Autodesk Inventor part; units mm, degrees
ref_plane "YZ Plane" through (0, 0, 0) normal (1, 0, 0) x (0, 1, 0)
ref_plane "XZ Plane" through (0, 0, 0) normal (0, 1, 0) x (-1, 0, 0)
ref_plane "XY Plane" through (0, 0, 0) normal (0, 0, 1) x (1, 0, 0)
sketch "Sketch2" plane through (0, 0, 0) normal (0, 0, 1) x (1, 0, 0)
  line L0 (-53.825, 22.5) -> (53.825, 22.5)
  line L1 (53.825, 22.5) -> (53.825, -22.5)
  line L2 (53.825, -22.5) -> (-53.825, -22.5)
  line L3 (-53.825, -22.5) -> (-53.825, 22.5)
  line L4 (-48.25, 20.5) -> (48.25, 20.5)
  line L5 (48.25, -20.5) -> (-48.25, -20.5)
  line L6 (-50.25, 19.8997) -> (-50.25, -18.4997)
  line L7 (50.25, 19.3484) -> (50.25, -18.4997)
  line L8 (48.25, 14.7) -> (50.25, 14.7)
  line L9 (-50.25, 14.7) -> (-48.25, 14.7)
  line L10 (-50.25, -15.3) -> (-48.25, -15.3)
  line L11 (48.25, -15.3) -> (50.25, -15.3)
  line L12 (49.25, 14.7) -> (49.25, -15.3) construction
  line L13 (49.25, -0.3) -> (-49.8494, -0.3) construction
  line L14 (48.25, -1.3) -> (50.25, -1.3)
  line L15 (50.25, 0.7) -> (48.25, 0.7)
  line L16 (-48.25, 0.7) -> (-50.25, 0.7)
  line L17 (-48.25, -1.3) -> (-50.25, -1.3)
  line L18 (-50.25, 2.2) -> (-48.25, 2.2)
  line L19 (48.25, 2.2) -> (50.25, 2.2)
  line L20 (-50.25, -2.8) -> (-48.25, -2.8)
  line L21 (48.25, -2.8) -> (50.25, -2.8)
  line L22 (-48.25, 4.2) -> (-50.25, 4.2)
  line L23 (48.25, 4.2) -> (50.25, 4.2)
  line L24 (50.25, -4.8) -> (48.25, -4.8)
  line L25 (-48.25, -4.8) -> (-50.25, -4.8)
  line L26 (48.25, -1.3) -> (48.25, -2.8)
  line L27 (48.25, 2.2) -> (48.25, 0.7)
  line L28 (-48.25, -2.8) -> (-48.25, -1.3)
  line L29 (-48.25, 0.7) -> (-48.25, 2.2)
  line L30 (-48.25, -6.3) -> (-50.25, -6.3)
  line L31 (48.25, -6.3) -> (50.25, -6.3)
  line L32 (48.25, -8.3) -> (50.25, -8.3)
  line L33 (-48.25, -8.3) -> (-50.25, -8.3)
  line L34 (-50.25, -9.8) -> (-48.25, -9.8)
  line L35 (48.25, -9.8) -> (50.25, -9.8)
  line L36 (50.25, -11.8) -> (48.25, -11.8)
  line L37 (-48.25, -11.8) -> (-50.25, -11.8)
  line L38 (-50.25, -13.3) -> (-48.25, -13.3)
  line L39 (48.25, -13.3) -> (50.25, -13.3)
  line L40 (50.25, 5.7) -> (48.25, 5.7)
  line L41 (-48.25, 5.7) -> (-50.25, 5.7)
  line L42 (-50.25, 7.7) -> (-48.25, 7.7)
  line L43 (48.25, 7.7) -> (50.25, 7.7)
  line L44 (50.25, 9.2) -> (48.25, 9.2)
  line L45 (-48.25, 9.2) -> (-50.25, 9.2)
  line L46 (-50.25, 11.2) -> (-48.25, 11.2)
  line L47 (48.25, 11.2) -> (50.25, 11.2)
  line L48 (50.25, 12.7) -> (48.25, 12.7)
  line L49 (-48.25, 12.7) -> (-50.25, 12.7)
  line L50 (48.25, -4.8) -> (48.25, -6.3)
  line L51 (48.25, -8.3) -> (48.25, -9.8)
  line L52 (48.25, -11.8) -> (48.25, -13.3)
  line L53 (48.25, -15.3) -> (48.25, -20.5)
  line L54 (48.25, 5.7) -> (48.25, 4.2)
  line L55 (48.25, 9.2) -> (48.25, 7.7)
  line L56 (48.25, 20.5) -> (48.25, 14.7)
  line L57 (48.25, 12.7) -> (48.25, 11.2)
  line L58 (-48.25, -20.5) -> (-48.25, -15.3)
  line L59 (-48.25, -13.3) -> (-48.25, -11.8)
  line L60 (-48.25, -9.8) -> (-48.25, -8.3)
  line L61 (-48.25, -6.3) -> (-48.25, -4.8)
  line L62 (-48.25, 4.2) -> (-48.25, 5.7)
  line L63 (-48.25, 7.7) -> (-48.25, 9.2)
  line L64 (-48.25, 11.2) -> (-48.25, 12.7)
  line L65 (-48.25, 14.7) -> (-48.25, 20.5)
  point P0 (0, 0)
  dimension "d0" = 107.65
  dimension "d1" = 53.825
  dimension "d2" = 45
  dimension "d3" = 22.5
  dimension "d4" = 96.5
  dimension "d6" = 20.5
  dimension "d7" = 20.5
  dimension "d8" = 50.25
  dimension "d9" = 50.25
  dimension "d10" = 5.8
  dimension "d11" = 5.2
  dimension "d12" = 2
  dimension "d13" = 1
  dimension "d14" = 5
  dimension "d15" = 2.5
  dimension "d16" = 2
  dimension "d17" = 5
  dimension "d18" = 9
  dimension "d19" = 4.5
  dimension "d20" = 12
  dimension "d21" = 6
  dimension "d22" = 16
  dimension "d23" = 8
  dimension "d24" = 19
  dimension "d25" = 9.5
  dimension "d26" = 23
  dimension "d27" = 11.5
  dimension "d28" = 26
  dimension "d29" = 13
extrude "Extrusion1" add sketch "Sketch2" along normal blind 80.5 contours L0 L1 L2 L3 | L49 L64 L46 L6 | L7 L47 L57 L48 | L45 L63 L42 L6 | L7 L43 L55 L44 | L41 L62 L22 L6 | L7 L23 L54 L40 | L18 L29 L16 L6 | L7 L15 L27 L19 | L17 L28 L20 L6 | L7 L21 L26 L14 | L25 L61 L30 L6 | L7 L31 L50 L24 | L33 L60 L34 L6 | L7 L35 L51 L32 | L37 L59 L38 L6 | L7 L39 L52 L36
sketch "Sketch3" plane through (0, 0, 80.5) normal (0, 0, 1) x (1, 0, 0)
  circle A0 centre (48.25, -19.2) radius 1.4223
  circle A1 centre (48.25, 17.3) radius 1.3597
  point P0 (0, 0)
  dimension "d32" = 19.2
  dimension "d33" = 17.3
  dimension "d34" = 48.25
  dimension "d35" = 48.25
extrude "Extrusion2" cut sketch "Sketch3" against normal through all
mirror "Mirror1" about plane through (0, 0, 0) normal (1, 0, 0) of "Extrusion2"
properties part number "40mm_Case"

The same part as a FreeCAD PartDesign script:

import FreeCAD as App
import Part
import Sketcher
from FreeCAD import Vector
Q = App.Units.Quantity

doc = App.newDocument("Part")
body = doc.addObject("PartDesign::Body", "Body")

# Sketch on XY plane
sketch1 = body.newObject("Sketcher::SketchObject", "Sketch")
sketch1.AttachmentSupport = (doc.getObject("XY_Plane"), [""])
sketch1.MapMode = "FlatFace"
sketch1.addGeometry([
    Part.LineSegment(Vector(53.8, 22.5, 0), Vector(-53.8, 22.5, 0)),  # 0
    Part.LineSegment(Vector(-53.8, 22.5, 0), Vector(-53.8, -22.5, 0)),  # 1
    Part.LineSegment(Vector(-53.8, -22.5, 0), Vector(53.8, -22.5, 0)),  # 2
    Part.LineSegment(Vector(53.8, -22.5, 0), Vector(53.8, 22.5, 0)),  # 3
    Part.LineSegment(Vector(-48.2, 14.7, 0), Vector(-48.2, 20.5, 0)),  # 4
    Part.LineSegment(Vector(-48.2, 20.5, 0), Vector(48.2, 20.5, 0)),  # 5
    Part.LineSegment(Vector(48.2, 20.5, 0), Vector(48.2, 14.7, 0)),  # 6
    Part.LineSegment(Vector(48.2, 14.7, 0), Vector(50.2, 14.7, 0)),  # 7
    Part.LineSegment(Vector(50.2, 14.7, 0), Vector(50.2, 12.7, 0)),  # 8
    Part.LineSegment(Vector(50.2, 12.7, 0), Vector(48.2, 12.7, 0)),  # 9
    Part.LineSegment(Vector(48.2, 12.7, 0), Vector(48.2, 11.2, 0)),  # 10
    Part.LineSegment(Vector(48.2, 11.2, 0), Vector(50.2, 11.2, 0)),  # 11
    Part.LineSegment(Vector(50.2, 11.2, 0), Vector(50.2, 9.2, 0)),  # 12
    Part.LineSegment(Vector(50.2, 9.2, 0), Vector(48.2, 9.2, 0)),  # 13
    Part.LineSegment(Vector(48.2, 9.2, 0), Vector(48.2, 7.7, 0)),  # 14
    Part.LineSegment(Vector(48.2, 7.7, 0), Vector(50.2, 7.7, 0)),  # 15
    Part.LineSegment(Vector(50.2, 7.7, 0), Vector(50.2, 5.7, 0)),  # 16
    Part.LineSegment(Vector(50.2, 5.7, 0), Vector(48.2, 5.7, 0)),  # 17
    Part.LineSegment(Vector(48.2, 5.7, 0), Vector(48.2, 4.2, 0)),  # 18
    Part.LineSegment(Vector(48.2, 4.2, 0), Vector(50.2, 4.2, 0)),  # 19
    Part.LineSegment(Vector(50.2, 4.2, 0), Vector(50.2, 2.2, 0)),  # 20
    Part.LineSegment(Vector(50.2, 2.2, 0), Vector(48.2, 2.2, 0)),  # 21
    Part.LineSegment(Vector(48.2, 2.2, 0), Vector(48.2, 0.7, 0)),  # 22
    Part.LineSegment(Vector(48.2, 0.7, 0), Vector(50.2, 0.7, 0)),  # 23
    Part.LineSegment(Vector(50.2, 0.7, 0), Vector(50.2, -1.3, 0)),  # 24
    Part.LineSegment(Vector(50.2, -1.3, 0), Vector(48.2, -1.3, 0)),  # 25
    Part.LineSegment(Vector(48.2, -1.3, 0), Vector(48.2, -2.8, 0)),  # 26
    Part.LineSegment(Vector(48.2, -2.8, 0), Vector(50.2, -2.8, 0)),  # 27
    Part.LineSegment(Vector(50.2, -2.8, 0), Vector(50.2, -4.8, 0)),  # 28
    Part.LineSegment(Vector(50.2, -4.8, 0), Vector(48.2, -4.8, 0)),  # 29
    Part.LineSegment(Vector(48.2, -4.8, 0), Vector(48.2, -6.3, 0)),  # 30
    Part.LineSegment(Vector(48.2, -6.3, 0), Vector(50.2, -6.3, 0)),  # 31
    Part.LineSegment(Vector(50.2, -6.3, 0), Vector(50.2, -8.3, 0)),  # 32
    Part.LineSegment(Vector(50.2, -8.3, 0), Vector(48.2, -8.3, 0)),  # 33
    Part.LineSegment(Vector(48.2, -8.3, 0), Vector(48.2, -9.8, 0)),  # 34
    Part.LineSegment(Vector(48.2, -9.8, 0), Vector(50.2, -9.8, 0)),  # 35
    Part.LineSegment(Vector(50.2, -9.8, 0), Vector(50.2, -11.8, 0)),  # 36
    Part.LineSegment(Vector(50.2, -11.8, 0), Vector(48.2, -11.8, 0)),  # 37
    Part.LineSegment(Vector(48.2, -11.8, 0), Vector(48.2, -13.3, 0)),  # 38
    Part.LineSegment(Vector(48.2, -13.3, 0), Vector(50.2, -13.3, 0)),  # 39
    Part.LineSegment(Vector(50.2, -13.3, 0), Vector(50.2, -15.3, 0)),  # 40
    Part.LineSegment(Vector(50.2, -15.3, 0), Vector(48.2, -15.3, 0)),  # 41
    Part.LineSegment(Vector(48.2, -15.3, 0), Vector(48.2, -20.5, 0)),  # 42
    Part.LineSegment(Vector(48.2, -20.5, 0), Vector(-48.2, -20.5, 0)),  # 43
    Part.LineSegment(Vector(-48.2, -20.5, 0), Vector(-48.2, -15.3, 0)),  # 44
    Part.LineSegment(Vector(-48.2, -15.3, 0), Vector(-50.2, -15.3, 0)),  # 45
    Part.LineSegment(Vector(-50.2, -15.3, 0), Vector(-50.2, -13.3, 0)),  # 46
    Part.LineSegment(Vector(-50.2, -13.3, 0), Vector(-48.2, -13.3, 0)),  # 47
    Part.LineSegment(Vector(-48.2, -13.3, 0), Vector(-48.2, -11.8, 0)),  # 48
    Part.LineSegment(Vector(-48.2, -11.8, 0), Vector(-50.2, -11.8, 0)),  # 49
    Part.LineSegment(Vector(-50.2, -11.8, 0), Vector(-50.2, -9.8, 0)),  # 50
    Part.LineSegment(Vector(-50.2, -9.8, 0), Vector(-48.2, -9.8, 0)),  # 51
    Part.LineSegment(Vector(-48.2, -9.8, 0), Vector(-48.2, -8.3, 0)),  # 52
    Part.LineSegment(Vector(-48.2, -8.3, 0), Vector(-50.2, -8.3, 0)),  # 53
    Part.LineSegment(Vector(-50.2, -8.3, 0), Vector(-50.2, -6.3, 0)),  # 54
    Part.LineSegment(Vector(-50.2, -6.3, 0), Vector(-48.2, -6.3, 0)),  # 55
    Part.LineSegment(Vector(-48.2, -6.3, 0), Vector(-48.2, -4.8, 0)),  # 56
    Part.LineSegment(Vector(-48.2, -4.8, 0), Vector(-50.2, -4.8, 0)),  # 57
    Part.LineSegment(Vector(-50.2, -4.8, 0), Vector(-50.2, -2.8, 0)),  # 58
    Part.LineSegment(Vector(-50.2, -2.8, 0), Vector(-48.2, -2.8, 0)),  # 59
    Part.LineSegment(Vector(-48.2, -2.8, 0), Vector(-48.2, -1.3, 0)),  # 60
    Part.LineSegment(Vector(-48.2, -1.3, 0), Vector(-50.2, -1.3, 0)),  # 61
    Part.LineSegment(Vector(-50.2, -1.3, 0), Vector(-50.2, 0.7, 0)),  # 62
    Part.LineSegment(Vector(-50.2, 0.7, 0), Vector(-48.2, 0.7, 0)),  # 63
    Part.LineSegment(Vector(-48.2, 0.7, 0), Vector(-48.2, 2.2, 0)),  # 64
    Part.LineSegment(Vector(-48.2, 2.2, 0), Vector(-50.2, 2.2, 0)),  # 65
    Part.LineSegment(Vector(-50.2, 2.2, 0), Vector(-50.2, 4.2, 0)),  # 66
    Part.LineSegment(Vector(-50.2, 4.2, 0), Vector(-48.2, 4.2, 0)),  # 67
    Part.LineSegment(Vector(-48.2, 4.2, 0), Vector(-48.2, 5.7, 0)),  # 68
    Part.LineSegment(Vector(-48.2, 5.7, 0), Vector(-50.2, 5.7, 0)),  # 69
    Part.LineSegment(Vector(-50.2, 5.7, 0), Vector(-50.2, 7.7, 0)),  # 70
    Part.LineSegment(Vector(-50.2, 7.7, 0), Vector(-48.2, 7.7, 0)),  # 71
    Part.LineSegment(Vector(-48.2, 7.7, 0), Vector(-48.2, 9.2, 0)),  # 72
    Part.LineSegment(Vector(-48.2, 9.2, 0), Vector(-50.2, 9.2, 0)),  # 73
    Part.LineSegment(Vector(-50.2, 9.2, 0), Vector(-50.2, 11.2, 0)),  # 74
    Part.LineSegment(Vector(-50.2, 11.2, 0), Vector(-48.2, 11.2, 0)),  # 75
    Part.LineSegment(Vector(-48.2, 11.2, 0), Vector(-48.2, 12.7, 0)),  # 76
    Part.LineSegment(Vector(-48.2, 12.7, 0), Vector(-50.2, 12.7, 0)),  # 77
    Part.LineSegment(Vector(-50.2, 12.7, 0), Vector(-50.2, 14.7, 0)),  # 78
    Part.LineSegment(Vector(-50.2, 14.7, 0), Vector(-48.2, 14.7, 0)),  # 79
], False)
sketch1.addConstraint([
    Sketcher.Constraint("Coincident", 0, 2, 1, 1),
    Sketcher.Constraint("Coincident", 1, 2, 2, 1),
    Sketcher.Constraint("Coincident", 2, 2, 3, 1),
    Sketcher.Constraint("Coincident", 3, 2, 0, 1),
    Sketcher.Constraint("Coincident", 4, 2, 5, 1),
    Sketcher.Constraint("Coincident", 5, 2, 6, 1),
    Sketcher.Constraint("Coincident", 6, 2, 7, 1),
    Sketcher.Constraint("Coincident", 7, 2, 8, 1),
    Sketcher.Constraint("Coincident", 8, 2, 9, 1),
    Sketcher.Constraint("Coincident", 9, 2, 10, 1),
    Sketcher.Constraint("Coincident", 10, 2, 11, 1),
    Sketcher.Constraint("Coincident", 11, 2, 12, 1),
    Sketcher.Constraint("Coincident", 12, 2, 13, 1),
    Sketcher.Constraint("Coincident", 13, 2, 14, 1),
    Sketcher.Constraint("Coincident", 14, 2, 15, 1),
    Sketcher.Constraint("Coincident", 15, 2, 16, 1),
    Sketcher.Constraint("Coincident", 16, 2, 17, 1),
    Sketcher.Constraint("Coincident", 17, 2, 18, 1),
    Sketcher.Constraint("Coincident", 18, 2, 19, 1),
    Sketcher.Constraint("Coincident", 19, 2, 20, 1),
    Sketcher.Constraint("Coincident", 20, 2, 21, 1),
    Sketcher.Constraint("Coincident", 21, 2, 22, 1),
    Sketcher.Constraint("Coincident", 22, 2, 23, 1),
    Sketcher.Constraint("Coincident", 23, 2, 24, 1),
    Sketcher.Constraint("Coincident", 24, 2, 25, 1),
    Sketcher.Constraint("Coincident", 25, 2, 26, 1),
    Sketcher.Constraint("Coincident", 26, 2, 27, 1),
    Sketcher.Constraint("Coincident", 27, 2, 28, 1),
    Sketcher.Constraint("Coincident", 28, 2, 29, 1),
    Sketcher.Constraint("Coincident", 29, 2, 30, 1),
    Sketcher.Constraint("Coincident", 30, 2, 31, 1),
    Sketcher.Constraint("Coincident", 31, 2, 32, 1),
    Sketcher.Constraint("Coincident", 32, 2, 33, 1),
    Sketcher.Constraint("Coincident", 33, 2, 34, 1),
    Sketcher.Constraint("Coincident", 34, 2, 35, 1),
    Sketcher.Constraint("Coincident", 35, 2, 36, 1),
    Sketcher.Constraint("Coincident", 36, 2, 37, 1),
    Sketcher.Constraint("Coincident", 37, 2, 38, 1),
    Sketcher.Constraint("Coincident", 38, 2, 39, 1),
    Sketcher.Constraint("Coincident", 39, 2, 40, 1),
    Sketcher.Constraint("Coincident", 40, 2, 41, 1),
    Sketcher.Constraint("Coincident", 41, 2, 42, 1),
    Sketcher.Constraint("Coincident", 42, 2, 43, 1),
    Sketcher.Constraint("Coincident", 43, 2, 44, 1),
    Sketcher.Constraint("Coincident", 44, 2, 45, 1),
    Sketcher.Constraint("Coincident", 45, 2, 46, 1),
    Sketcher.Constraint("Coincident", 46, 2, 47, 1),
    Sketcher.Constraint("Coincident", 47, 2, 48, 1),
    Sketcher.Constraint("Coincident", 48, 2, 49, 1),
    Sketcher.Constraint("Coincident", 49, 2, 50, 1),
    Sketcher.Constraint("Coincident", 50, 2, 51, 1),
    Sketcher.Constraint("Coincident", 51, 2, 52, 1),
    Sketcher.Constraint("Coincident", 52, 2, 53, 1),
    Sketcher.Constraint("Coincident", 53, 2, 54, 1),
    Sketcher.Constraint("Coincident", 54, 2, 55, 1),
    Sketcher.Constraint("Coincident", 55, 2, 56, 1),
    Sketcher.Constraint("Coincident", 56, 2, 57, 1),
    Sketcher.Constraint("Coincident", 57, 2, 58, 1),
    Sketcher.Constraint("Coincident", 58, 2, 59, 1),
    Sketcher.Constraint("Coincident", 59, 2, 60, 1),
    Sketcher.Constraint("Coincident", 60, 2, 61, 1),
    Sketcher.Constraint("Coincident", 61, 2, 62, 1),
    Sketcher.Constraint("Coincident", 62, 2, 63, 1),
    Sketcher.Constraint("Coincident", 63, 2, 64, 1),
    Sketcher.Constraint("Coincident", 64, 2, 65, 1),
    Sketcher.Constraint("Coincident", 65, 2, 66, 1),
    Sketcher.Constraint("Coincident", 66, 2, 67, 1),
    Sketcher.Constraint("Coincident", 67, 2, 68, 1),
    Sketcher.Constraint("Coincident", 68, 2, 69, 1),
    Sketcher.Constraint("Coincident", 69, 2, 70, 1),
    Sketcher.Constraint("Coincident", 70, 2, 71, 1),
    Sketcher.Constraint("Coincident", 71, 2, 72, 1),
    Sketcher.Constraint("Coincident", 72, 2, 73, 1),
    Sketcher.Constraint("Coincident", 73, 2, 74, 1),
    Sketcher.Constraint("Coincident", 74, 2, 75, 1),
    Sketcher.Constraint("Coincident", 75, 2, 76, 1),
    Sketcher.Constraint("Coincident", 76, 2, 77, 1),
    Sketcher.Constraint("Coincident", 77, 2, 78, 1),
    Sketcher.Constraint("Coincident", 78, 2, 79, 1),
    Sketcher.Constraint("Coincident", 79, 2, 4, 1),
    Sketcher.Constraint("Horizontal", 0),
    Sketcher.Constraint("Vertical", 1),
    Sketcher.Constraint("Horizontal", 2),
    Sketcher.Constraint("Vertical", 3),
    Sketcher.Constraint("Vertical", 4),
    Sketcher.Constraint("Horizontal", 5),
    Sketcher.Constraint("Vertical", 6),
    Sketcher.Constraint("Horizontal", 7),
    Sketcher.Constraint("Vertical", 8),
    Sketcher.Constraint("Horizontal", 9),
    Sketcher.Constraint("Vertical", 10),
    Sketcher.Constraint("Horizontal", 11),
    Sketcher.Constraint("Vertical", 12),
    Sketcher.Constraint("Horizontal", 13),
    Sketcher.Constraint("Vertical", 14),
    Sketcher.Constraint("Horizontal", 15),
    Sketcher.Constraint("Vertical", 16),
    Sketcher.Constraint("Horizontal", 17),
    Sketcher.Constraint("Vertical", 18),
    Sketcher.Constraint("Horizontal", 19),
    Sketcher.Constraint("Vertical", 20),
    Sketcher.Constraint("Horizontal", 21),
    Sketcher.Constraint("Vertical", 22),
    Sketcher.Constraint("Horizontal", 23),
    Sketcher.Constraint("Vertical", 24),
    Sketcher.Constraint("Horizontal", 25),
    Sketcher.Constraint("Vertical", 26),
    Sketcher.Constraint("Horizontal", 27),
    Sketcher.Constraint("Vertical", 28),
    Sketcher.Constraint("Horizontal", 29),
    Sketcher.Constraint("Vertical", 30),
    Sketcher.Constraint("Horizontal", 31),
    Sketcher.Constraint("Vertical", 32),
    Sketcher.Constraint("Horizontal", 33),
    Sketcher.Constraint("Vertical", 34),
    Sketcher.Constraint("Horizontal", 35),
    Sketcher.Constraint("Vertical", 36),
    Sketcher.Constraint("Horizontal", 37),
    Sketcher.Constraint("Vertical", 38),
    Sketcher.Constraint("Horizontal", 39),
    Sketcher.Constraint("Vertical", 40),
    Sketcher.Constraint("Horizontal", 41),
    Sketcher.Constraint("Vertical", 42),
    Sketcher.Constraint("Horizontal", 43),
    Sketcher.Constraint("Vertical", 44),
    Sketcher.Constraint("Horizontal", 45),
    Sketcher.Constraint("Vertical", 46),
    Sketcher.Constraint("Horizontal", 47),
    Sketcher.Constraint("Vertical", 48),
    Sketcher.Constraint("Horizontal", 49),
    Sketcher.Constraint("Vertical", 50),
    Sketcher.Constraint("Horizontal", 51),
    Sketcher.Constraint("Vertical", 52),
    Sketcher.Constraint("Horizontal", 53),
    Sketcher.Constraint("Vertical", 54),
    Sketcher.Constraint("Horizontal", 55),
    Sketcher.Constraint("Vertical", 56),
    Sketcher.Constraint("Horizontal", 57),
    Sketcher.Constraint("Vertical", 58),
    Sketcher.Constraint("Horizontal", 59),
    Sketcher.Constraint("Vertical", 60),
    Sketcher.Constraint("Horizontal", 61),
    Sketcher.Constraint("Vertical", 62),
    Sketcher.Constraint("Horizontal", 63),
    Sketcher.Constraint("Vertical", 64),
    Sketcher.Constraint("Horizontal", 65),
    Sketcher.Constraint("Vertical", 66),
    Sketcher.Constraint("Horizontal", 67),
    Sketcher.Constraint("Vertical", 68),
    Sketcher.Constraint("Horizontal", 69),
    Sketcher.Constraint("Vertical", 70),
    Sketcher.Constraint("Horizontal", 71),
    Sketcher.Constraint("Vertical", 72),
    Sketcher.Constraint("Horizontal", 73),
    Sketcher.Constraint("Vertical", 74),
    Sketcher.Constraint("Horizontal", 75),
    Sketcher.Constraint("Vertical", 76),
    Sketcher.Constraint("Horizontal", 77),
    Sketcher.Constraint("Vertical", 78),
    Sketcher.Constraint("Horizontal", 79),
    Sketcher.Constraint("Symmetric", 0, 2, 2, 2, -1, 1),
    Sketcher.Constraint("Symmetric", 4, 2, 42, 2, -1, 1),
    Sketcher.Constraint("Symmetric", 41, 2, 44, 2, -2),
    Sketcher.Constraint("Symmetric", 39, 2, 46, 2, -2),
    Sketcher.Constraint("Symmetric", 37, 2, 48, 2, -2),
    Sketcher.Constraint("Symmetric", 35, 2, 50, 2, -2),
    Sketcher.Constraint("Symmetric", 33, 2, 52, 2, -2),
    Sketcher.Constraint("Symmetric", 31, 2, 54, 2, -2),
    Sketcher.Constraint("Symmetric", 29, 2, 56, 2, -2),
    Sketcher.Constraint("Symmetric", 27, 2, 58, 2, -2),
    Sketcher.Constraint("Symmetric", 25, 2, 60, 2, -2),
    Sketcher.Constraint("Symmetric", 23, 2, 62, 2, -2),
    Sketcher.Constraint("Symmetric", 21, 2, 64, 2, -2),
    Sketcher.Constraint("Symmetric", 19, 2, 66, 2, -2),
    Sketcher.Constraint("Symmetric", 17, 2, 68, 2, -2),
    Sketcher.Constraint("Symmetric", 15, 2, 70, 2, -2),
    Sketcher.Constraint("Symmetric", 13, 2, 72, 2, -2),
    Sketcher.Constraint("Symmetric", 11, 2, 74, 2, -2),
    Sketcher.Constraint("Symmetric", 9, 2, 76, 2, -2),
    Sketcher.Constraint("Symmetric", 7, 2, 78, 2, -2),
    Sketcher.Constraint("Vertical", 6, 2, 9, 2),
    Sketcher.Constraint("Vertical", 8, 2, 11, 2),
    Sketcher.Constraint("Vertical", 10, 2, 13, 2),
    Sketcher.Constraint("Vertical", 12, 2, 15, 2),
    Sketcher.Constraint("Vertical", 14, 2, 17, 2),
    Sketcher.Constraint("Vertical", 16, 2, 19, 2),
    Sketcher.Constraint("Vertical", 18, 2, 21, 2),
    Sketcher.Constraint("Vertical", 20, 2, 23, 2),
    Sketcher.Constraint("Vertical", 22, 2, 25, 2),
    Sketcher.Constraint("Vertical", 24, 2, 27, 2),
    Sketcher.Constraint("Vertical", 26, 2, 29, 2),
    Sketcher.Constraint("Vertical", 28, 2, 31, 2),
    Sketcher.Constraint("Vertical", 30, 2, 33, 2),
    Sketcher.Constraint("Vertical", 32, 2, 35, 2),
    Sketcher.Constraint("Vertical", 34, 2, 37, 2),
    Sketcher.Constraint("Vertical", 36, 2, 39, 2),
    Sketcher.Constraint("Vertical", 38, 2, 41, 2),
    Sketcher.Constraint("Equal", 79, 8),
    Sketcher.Constraint("Equal", 8, 12),
    Sketcher.Constraint("Equal", 10, 14),
    Sketcher.Constraint("Equal", 12, 16),
    Sketcher.Constraint("Equal", 14, 18),
    Sketcher.Constraint("Equal", 16, 20),
    Sketcher.Constraint("Equal", 18, 22),
    Sketcher.Constraint("Equal", 20, 24),
    Sketcher.Constraint("Equal", 22, 26),
    Sketcher.Constraint("Equal", 24, 28),
    Sketcher.Constraint("Equal", 26, 30),
    Sketcher.Constraint("Equal", 28, 32),
    Sketcher.Constraint("Equal", 30, 34),
    Sketcher.Constraint("Equal", 32, 36),
    Sketcher.Constraint("Equal", 34, 38),
    Sketcher.Constraint("Equal", 36, 40),
    Sketcher.Constraint("DistanceX", 7, 1, 7, 2, Q("2 mm")),
    Sketcher.Constraint("DistanceY", 1, 2, 1, 1, Q("45 mm")),
    Sketcher.Constraint("DistanceX", 5, 1, 5, 2, Q("96.5 mm")),
    Sketcher.Constraint("DistanceY", 4, 1, 4, 2, Q("5.8 mm")),
    Sketcher.Constraint("DistanceY", 42, 2, 42, 1, Q("5.2 mm")),
    Sketcher.Constraint("DistanceX", 0, 2, 0, 1, Q("107.65 mm")),
    Sketcher.Constraint("DistanceY", -1, 1, 4, 2, Q("20.5 mm")),
])
pad1 = body.newObject("PartDesign::Pad", "Pad")
pad1.Profile = sketch1
pad1.Length = 80.5

# Sketch on XY plane
sketch2 = body.newObject("Sketcher::SketchObject", "Sketch001")
sketch2.AttachmentSupport = (doc.getObject("XY_Plane"), [""])
sketch2.MapMode = "FlatFace"
sketch2.AttachmentOffset = App.Placement(Vector(0, 0, 80.5), App.Rotation())
sketch2.addGeometry([
    Part.Circle(Vector(48.2, -19.2, 0), Vector(0, 0, 1), 1.4),
    Part.Circle(Vector(48.2, 17.3, 0), Vector(0, 0, 1), 1.4),
], False)
sketch2.addConstraint([
    Sketcher.Constraint("Vertical", 0, 3, 1, 3),
    Sketcher.Constraint("DistanceY", 0, 3, -1, 1, Q("19.2 mm")),
    Sketcher.Constraint("DistanceY", -1, 1, 1, 3, Q("17.3 mm")),
    Sketcher.Constraint("DistanceX", -1, 1, 0, 3, Q("48.25 mm")),
    Sketcher.Constraint("Diameter", 0, Q("2.8446 mm")),
    Sketcher.Constraint("Diameter", 1, Q("2.7194 mm")),
])
pocket1 = body.newObject("PartDesign::Pocket", "Pocket")
pocket1.Profile = sketch2
pocket1.Type = "ThroughAll"
doc.recompute()

mirrored = body.newObject("PartDesign::Mirrored", "Mirrored")
mirrored.Originals = [pocket1]
mirrored.MirrorPlane = (doc.getObject("YZ_Plane"), [""])
body.Tip = mirrored

doc.recompute()
